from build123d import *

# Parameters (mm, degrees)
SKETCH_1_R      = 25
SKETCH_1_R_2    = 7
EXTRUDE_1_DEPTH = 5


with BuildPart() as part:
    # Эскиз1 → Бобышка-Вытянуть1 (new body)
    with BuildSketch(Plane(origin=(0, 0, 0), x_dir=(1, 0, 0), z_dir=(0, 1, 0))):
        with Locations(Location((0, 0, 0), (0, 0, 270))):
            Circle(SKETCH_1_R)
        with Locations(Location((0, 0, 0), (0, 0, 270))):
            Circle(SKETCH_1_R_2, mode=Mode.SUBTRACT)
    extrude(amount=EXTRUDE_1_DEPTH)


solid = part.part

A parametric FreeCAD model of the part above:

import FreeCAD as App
import Part
import Sketcher

V = App.Vector

doc = App.newDocument("Part")
body = doc.addObject("PartDesign::Body", "Body")

# Sketch on XZ plane
sketch1 = body.newObject("Sketcher::SketchObject", "Sketch")
sketch1.AttachmentSupport = (doc.getObject("XZ_Plane"), [""])
sketch1.MapMode = "FlatFace"
sketch1.addGeometry(Part.Circle(V(0, 0, 0), V(0, 0, 1), 25), False)
sketch1.addGeometry(Part.Circle(V(0, 0, 0), V(0, 0, 1), 7), False)
sketch1.addConstraint(Sketcher.Constraint("Coincident", 0, 3, -1, 1))
sketch1.addConstraint(Sketcher.Constraint("Coincident", 1, 3, -1, 1))
sketch1.addConstraint(Sketcher.Constraint("Diameter", 0, 50.0))
sketch1.addConstraint(Sketcher.Constraint("Diameter", 1, 14.0))
pad1 = body.newObject("PartDesign::Pad", "Pad")
pad1.Profile = sketch1
pad1.Length = 5
pad1.Reversed = True

doc.recompute()
